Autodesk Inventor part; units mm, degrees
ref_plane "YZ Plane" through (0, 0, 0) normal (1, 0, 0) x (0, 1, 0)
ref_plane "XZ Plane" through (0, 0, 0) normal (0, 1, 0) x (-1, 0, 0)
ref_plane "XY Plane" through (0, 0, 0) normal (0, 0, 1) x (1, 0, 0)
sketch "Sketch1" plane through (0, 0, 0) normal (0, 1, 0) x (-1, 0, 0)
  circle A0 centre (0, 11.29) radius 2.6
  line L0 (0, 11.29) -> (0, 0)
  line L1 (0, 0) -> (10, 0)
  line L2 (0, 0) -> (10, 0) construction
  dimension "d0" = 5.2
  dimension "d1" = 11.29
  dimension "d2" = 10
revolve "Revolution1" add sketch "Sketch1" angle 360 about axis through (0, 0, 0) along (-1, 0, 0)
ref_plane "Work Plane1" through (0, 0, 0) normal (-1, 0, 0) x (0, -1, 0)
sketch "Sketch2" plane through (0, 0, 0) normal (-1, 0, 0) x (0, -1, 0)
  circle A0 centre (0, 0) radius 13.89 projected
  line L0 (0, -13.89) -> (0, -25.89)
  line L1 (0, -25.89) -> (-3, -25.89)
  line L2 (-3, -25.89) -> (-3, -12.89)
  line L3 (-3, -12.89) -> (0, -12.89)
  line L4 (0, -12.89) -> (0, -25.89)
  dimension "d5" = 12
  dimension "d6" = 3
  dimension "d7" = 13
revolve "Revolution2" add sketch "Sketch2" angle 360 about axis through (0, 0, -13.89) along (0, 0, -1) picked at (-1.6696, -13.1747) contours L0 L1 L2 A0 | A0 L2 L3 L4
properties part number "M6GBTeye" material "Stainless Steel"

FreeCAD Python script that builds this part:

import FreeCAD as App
import Part
import Sketcher


def add_polygon(sketch, points):
    """Adds a closed chain of lines whose ends are joined by coincident constraints."""
    first, n = sketch.GeometryCount, len(points)
    for a, b in zip(points, points[1:] + points[:1]):
        sketch.addGeometry(Part.LineSegment(App.Vector(*a, 0), App.Vector(*b, 0)), False)
    for i in range(n):
        sketch.addConstraint(Sketcher.Constraint("Coincident", first + i, 2, first + (i + 1) % n, 1))

doc = App.newDocument("Part")
body = doc.addObject("PartDesign::Body", "Body")

# Sketch on XZ plane
sketch1 = body.newObject("Sketcher::SketchObject", "Sketch")
sketch1.AttachmentSupport = (doc.getObject("XZ_Plane"), [""])
sketch1.MapMode = "FlatFace"
sketch1.addGeometry(Part.Circle(App.Vector(0, 11.3, 0), App.Vector(0, 0, 1), 2.6), False)
sketch1.addConstraint([
    Sketcher.Constraint("PointOnObject", 0, 3, -2),
    Sketcher.Constraint("Diameter", 0, 5.2),
    Sketcher.Constraint("DistanceY", -1, 1, 0, 3, 11.29),
])
revolution = body.newObject("PartDesign::Revolution", "Revolution")
revolution.Profile = sketch1
revolution.ReferenceAxis = (sketch1, ["H_Axis"])
revolution.Angle = 360

# Sketch on YZ plane
sketch2 = body.newObject("Sketcher::SketchObject", "Sketch001")
sketch2.AttachmentSupport = (doc.getObject("YZ_Plane"), [""])
sketch2.MapMode = "FlatFace"
add_polygon(sketch2, [(0, -25.9), (0, -12.9), (3, -12.9), (3, -25.9)])  # lines 0-3
sketch2.addConstraint([
    Sketcher.Constraint("Vertical", 0),
    Sketcher.Constraint("Horizontal", 1),
    Sketcher.Constraint("Vertical", 2),
    Sketcher.Constraint("Horizontal", 3),
    Sketcher.Constraint("PointOnObject", 0, 2, -2),
    Sketcher.Constraint("DistanceX", 1, 1, 1, 2, 3.0),
    Sketcher.Constraint("DistanceY", 0, 1, 0, 2, 13.0),
    Sketcher.Constraint("DistanceY", 0, 2, -1, 1, 12.89),
])
revolution2 = body.newObject("PartDesign::Revolution", "Revolution001")
revolution2.Profile = sketch2
revolution2.ReferenceAxis = (sketch2, ["V_Axis"])
revolution2.Angle = 360

doc.recompute()
